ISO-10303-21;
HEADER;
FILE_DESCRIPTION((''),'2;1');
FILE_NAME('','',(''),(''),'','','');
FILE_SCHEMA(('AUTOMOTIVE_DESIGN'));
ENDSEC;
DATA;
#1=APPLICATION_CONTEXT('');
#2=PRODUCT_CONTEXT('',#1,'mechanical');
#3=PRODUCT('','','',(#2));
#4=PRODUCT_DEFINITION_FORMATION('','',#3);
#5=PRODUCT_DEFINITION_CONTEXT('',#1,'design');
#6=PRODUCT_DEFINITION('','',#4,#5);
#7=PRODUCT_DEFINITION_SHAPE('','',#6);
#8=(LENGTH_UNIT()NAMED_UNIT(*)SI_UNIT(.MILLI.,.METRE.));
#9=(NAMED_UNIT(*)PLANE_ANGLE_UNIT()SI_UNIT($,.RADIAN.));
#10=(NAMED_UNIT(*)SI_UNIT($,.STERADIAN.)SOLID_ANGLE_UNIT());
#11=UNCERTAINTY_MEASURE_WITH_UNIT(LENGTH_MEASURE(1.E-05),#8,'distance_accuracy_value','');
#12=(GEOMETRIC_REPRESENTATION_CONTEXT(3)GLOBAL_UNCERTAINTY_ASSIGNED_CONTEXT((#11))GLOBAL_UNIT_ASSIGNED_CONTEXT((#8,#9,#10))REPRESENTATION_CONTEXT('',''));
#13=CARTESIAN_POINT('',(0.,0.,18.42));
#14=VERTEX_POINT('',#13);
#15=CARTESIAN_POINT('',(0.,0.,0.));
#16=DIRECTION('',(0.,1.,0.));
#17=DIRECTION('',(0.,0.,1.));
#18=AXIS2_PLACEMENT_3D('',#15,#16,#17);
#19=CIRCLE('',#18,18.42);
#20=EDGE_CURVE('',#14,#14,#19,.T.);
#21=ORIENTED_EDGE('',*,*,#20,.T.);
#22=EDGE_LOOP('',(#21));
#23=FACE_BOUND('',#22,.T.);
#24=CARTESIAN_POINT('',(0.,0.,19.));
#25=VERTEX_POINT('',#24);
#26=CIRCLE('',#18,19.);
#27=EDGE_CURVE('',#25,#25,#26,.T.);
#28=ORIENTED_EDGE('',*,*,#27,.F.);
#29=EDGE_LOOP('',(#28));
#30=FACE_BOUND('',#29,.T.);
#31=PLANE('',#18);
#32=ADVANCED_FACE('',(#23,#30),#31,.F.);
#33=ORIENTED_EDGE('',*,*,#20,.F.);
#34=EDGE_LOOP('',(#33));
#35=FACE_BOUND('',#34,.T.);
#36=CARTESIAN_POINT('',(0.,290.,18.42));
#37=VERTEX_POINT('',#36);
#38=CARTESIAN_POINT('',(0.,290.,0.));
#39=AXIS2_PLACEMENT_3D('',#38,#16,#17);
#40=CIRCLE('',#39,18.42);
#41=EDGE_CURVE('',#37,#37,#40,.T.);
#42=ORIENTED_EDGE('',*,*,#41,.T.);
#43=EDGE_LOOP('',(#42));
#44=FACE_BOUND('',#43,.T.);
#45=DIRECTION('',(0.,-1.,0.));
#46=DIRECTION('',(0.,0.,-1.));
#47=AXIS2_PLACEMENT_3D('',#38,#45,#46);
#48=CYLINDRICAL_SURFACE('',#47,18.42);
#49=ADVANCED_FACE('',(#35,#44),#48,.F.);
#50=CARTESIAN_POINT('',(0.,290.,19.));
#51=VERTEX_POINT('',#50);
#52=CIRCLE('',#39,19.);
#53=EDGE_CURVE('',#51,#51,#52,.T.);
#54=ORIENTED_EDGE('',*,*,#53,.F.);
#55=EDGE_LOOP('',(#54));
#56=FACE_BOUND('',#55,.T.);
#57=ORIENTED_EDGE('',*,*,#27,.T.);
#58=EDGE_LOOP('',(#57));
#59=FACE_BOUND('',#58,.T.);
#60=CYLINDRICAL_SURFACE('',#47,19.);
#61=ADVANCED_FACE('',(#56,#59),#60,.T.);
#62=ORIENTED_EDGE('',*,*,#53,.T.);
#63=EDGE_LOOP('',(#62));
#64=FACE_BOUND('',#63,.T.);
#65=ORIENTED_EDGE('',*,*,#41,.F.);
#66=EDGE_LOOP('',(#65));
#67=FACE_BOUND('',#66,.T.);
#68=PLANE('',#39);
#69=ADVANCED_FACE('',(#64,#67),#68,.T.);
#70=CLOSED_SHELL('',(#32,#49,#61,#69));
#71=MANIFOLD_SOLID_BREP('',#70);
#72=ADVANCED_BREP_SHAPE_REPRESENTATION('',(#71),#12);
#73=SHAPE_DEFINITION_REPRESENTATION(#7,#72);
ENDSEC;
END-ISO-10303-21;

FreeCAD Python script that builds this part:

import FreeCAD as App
import Part
import Sketcher

doc = App.newDocument("Part")
body = doc.addObject("PartDesign::Body", "Body")

# Sketch on XZ plane
sketch1 = doc.addObject("Sketcher::SketchObject", "Sketch")
body.addObject(sketch1)
sketch1.AttachmentSupport = (doc.XZ_Plane, [""])
sketch1.MapMode = "FlatFace"
sketch1.addGeometry([
    Part.Circle(App.Vector(0, 0, 0), App.Vector(0, 0, 1), 19),
    Part.Circle(App.Vector(0, 0, 0), App.Vector(0, 0, 1), 18),
], False)
sketch1.addConstraint([
    Sketcher.Constraint("Coincident", 0, 3, -1, 1),
    Sketcher.Constraint("Coincident", 1, 3, -1, 1),
    Sketcher.Constraint("Diameter", 0, 38.0),
    Sketcher.Constraint("Diameter", 1, 36.84),
])
pad1 = doc.addObject("PartDesign::Pad", "Pad")
body.addObject(pad1)
pad1.Profile = sketch1
pad1.Length = 290
pad1.Reversed = True

doc.recompute()
